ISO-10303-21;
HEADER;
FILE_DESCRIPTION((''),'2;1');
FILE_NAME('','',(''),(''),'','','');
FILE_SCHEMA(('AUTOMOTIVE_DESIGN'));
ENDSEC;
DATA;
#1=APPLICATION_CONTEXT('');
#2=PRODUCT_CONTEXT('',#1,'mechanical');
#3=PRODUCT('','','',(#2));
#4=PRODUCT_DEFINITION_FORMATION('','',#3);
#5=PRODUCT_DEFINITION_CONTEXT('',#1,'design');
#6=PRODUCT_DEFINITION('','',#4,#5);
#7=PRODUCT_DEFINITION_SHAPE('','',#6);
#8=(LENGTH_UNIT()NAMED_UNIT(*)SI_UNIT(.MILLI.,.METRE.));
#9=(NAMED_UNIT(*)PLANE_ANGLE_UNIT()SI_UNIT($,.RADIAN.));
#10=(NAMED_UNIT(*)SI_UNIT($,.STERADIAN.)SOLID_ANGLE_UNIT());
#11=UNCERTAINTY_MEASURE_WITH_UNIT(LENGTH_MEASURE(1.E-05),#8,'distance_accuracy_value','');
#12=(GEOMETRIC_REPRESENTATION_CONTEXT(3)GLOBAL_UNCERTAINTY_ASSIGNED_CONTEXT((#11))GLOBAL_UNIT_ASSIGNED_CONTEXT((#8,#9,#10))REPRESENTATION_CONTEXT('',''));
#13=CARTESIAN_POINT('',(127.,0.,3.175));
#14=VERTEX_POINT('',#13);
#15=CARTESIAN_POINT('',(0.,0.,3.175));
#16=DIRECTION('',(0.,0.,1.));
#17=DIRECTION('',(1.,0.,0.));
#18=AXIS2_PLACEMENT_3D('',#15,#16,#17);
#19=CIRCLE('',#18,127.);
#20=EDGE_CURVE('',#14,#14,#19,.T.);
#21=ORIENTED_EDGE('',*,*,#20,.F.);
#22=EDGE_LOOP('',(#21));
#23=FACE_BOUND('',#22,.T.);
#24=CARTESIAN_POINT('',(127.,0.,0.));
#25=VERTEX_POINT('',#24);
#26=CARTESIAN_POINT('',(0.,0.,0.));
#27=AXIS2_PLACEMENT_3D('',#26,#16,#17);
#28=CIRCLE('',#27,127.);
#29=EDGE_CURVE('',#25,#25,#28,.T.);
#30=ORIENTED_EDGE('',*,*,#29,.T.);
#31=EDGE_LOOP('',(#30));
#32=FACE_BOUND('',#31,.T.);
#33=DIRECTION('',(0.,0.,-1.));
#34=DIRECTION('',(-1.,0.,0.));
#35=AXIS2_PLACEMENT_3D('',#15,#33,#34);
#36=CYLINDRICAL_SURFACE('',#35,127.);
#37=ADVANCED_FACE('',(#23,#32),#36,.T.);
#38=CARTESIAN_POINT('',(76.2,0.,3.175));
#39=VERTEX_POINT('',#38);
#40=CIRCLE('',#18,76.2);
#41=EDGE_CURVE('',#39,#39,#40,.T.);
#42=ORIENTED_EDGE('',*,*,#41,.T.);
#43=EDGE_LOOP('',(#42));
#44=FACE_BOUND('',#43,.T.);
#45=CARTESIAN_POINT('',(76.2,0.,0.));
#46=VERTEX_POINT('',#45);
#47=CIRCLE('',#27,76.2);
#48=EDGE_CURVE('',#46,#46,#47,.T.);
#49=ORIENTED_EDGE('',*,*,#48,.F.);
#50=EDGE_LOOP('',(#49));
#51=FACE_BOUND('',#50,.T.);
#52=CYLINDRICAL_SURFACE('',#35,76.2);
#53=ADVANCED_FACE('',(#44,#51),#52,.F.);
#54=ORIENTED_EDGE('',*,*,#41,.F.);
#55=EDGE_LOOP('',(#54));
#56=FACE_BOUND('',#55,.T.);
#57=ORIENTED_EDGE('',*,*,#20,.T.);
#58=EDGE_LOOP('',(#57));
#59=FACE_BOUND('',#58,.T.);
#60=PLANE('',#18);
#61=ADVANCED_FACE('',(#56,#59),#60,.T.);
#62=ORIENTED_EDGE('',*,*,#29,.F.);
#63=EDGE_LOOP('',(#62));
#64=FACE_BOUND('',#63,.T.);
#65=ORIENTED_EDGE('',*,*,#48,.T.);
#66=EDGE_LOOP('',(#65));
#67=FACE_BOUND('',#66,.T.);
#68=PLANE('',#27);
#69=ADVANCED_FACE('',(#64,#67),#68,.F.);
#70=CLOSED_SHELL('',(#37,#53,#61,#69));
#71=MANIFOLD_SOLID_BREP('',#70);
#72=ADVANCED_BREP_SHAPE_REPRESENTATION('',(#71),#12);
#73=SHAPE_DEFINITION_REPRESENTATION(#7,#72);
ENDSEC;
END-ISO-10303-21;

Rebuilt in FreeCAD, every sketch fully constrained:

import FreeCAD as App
import Part
import Sketcher

V = App.Vector
Q = App.Units.Quantity

doc = App.newDocument("Part")
body = doc.addObject("PartDesign::Body", "Body")

# Sketch on XY plane
sketch1 = body.newObject("Sketcher::SketchObject", "Sketch")
sketch1.AttachmentSupport = (doc.getObject("XY_Plane"), [""])
sketch1.MapMode = "FlatFace"
sketch1.addGeometry([
    Part.Circle(V(0, 0, 0), V(0, 0, 1), 127),
    Part.Circle(V(0, 0, 0), V(0, 0, 1), 76),
], False)
sketch1.addConstraint([
    Sketcher.Constraint("Coincident", 0, 3, -1, 1),
    Sketcher.Constraint("Coincident", 1, 3, -1, 1),
    Sketcher.Constraint("Diameter", 0, Q("10 in")),
    Sketcher.Constraint("Diameter", 1, Q("6 in")),
])
pad1 = body.newObject("PartDesign::Pad", "Pad")
pad1.Profile = sketch1
pad1.Length = Q("0.125 in")

doc.recompute()
